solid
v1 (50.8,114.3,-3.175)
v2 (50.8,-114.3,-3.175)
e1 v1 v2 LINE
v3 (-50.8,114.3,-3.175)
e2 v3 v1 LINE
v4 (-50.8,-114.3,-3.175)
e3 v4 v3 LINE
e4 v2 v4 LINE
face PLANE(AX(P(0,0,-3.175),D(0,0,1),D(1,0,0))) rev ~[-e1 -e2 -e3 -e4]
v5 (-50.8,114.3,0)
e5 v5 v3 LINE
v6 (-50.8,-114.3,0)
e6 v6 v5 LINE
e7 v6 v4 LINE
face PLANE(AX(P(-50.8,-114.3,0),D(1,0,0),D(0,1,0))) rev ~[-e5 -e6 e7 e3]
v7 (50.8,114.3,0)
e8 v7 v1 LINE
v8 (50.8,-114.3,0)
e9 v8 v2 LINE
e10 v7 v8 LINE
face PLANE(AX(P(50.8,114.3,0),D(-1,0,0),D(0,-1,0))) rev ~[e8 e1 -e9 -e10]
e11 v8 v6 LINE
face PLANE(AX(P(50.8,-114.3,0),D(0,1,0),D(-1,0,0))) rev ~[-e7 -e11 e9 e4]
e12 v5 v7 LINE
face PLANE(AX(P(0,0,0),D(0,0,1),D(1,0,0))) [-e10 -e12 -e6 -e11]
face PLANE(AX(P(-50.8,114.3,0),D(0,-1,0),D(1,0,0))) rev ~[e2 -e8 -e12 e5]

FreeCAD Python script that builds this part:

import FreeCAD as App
import Part
import Sketcher
Q = App.Units.Quantity


def add_polygon(sketch, points):
    """Adds a closed chain of lines whose ends are joined by coincident constraints."""
    first, n = sketch.GeometryCount, len(points)
    for a, b in zip(points, points[1:] + points[:1]):
        sketch.addGeometry(Part.LineSegment(App.Vector(*a, 0), App.Vector(*b, 0)), False)
    for i in range(n):
        sketch.addConstraint(Sketcher.Constraint("Coincident", first + i, 2, first + (i + 1) % n, 1))

doc = App.newDocument("Part")
body = doc.addObject("PartDesign::Body", "Body")

sketch1 = body.newObject("Sketcher::SketchObject", "Sketch")
sketch1.AttachmentSupport = (doc.getObject("XY_Plane"), [""])
sketch1.MapMode = "FlatFace"
add_polygon(sketch1, [(51, 114), (-51, 114), (-51, -114), (51, -114)])
sketch1.addConstraint(Sketcher.Constraint("Horizontal", 0))
sketch1.addConstraint(Sketcher.Constraint("Vertical", 1))
sketch1.addConstraint(Sketcher.Constraint("Horizontal", 2))
sketch1.addConstraint(Sketcher.Constraint("Vertical", 3))
sketch1.addConstraint(Sketcher.Constraint("Symmetric", 0, 2, 2, 2, -1, 1))
sketch1.addConstraint(Sketcher.Constraint("DistanceX", 0, 2, 0, 1, Q("4 in")))
sketch1.addConstraint(Sketcher.Constraint("DistanceY", 1, 2, 1, 1, Q("9 in")))
pad1 = body.newObject("PartDesign::Pad", "Pad")
pad1.Profile = sketch1
pad1.Length = Q("0.125 in")
pad1.Reversed = True

doc.recompute()
